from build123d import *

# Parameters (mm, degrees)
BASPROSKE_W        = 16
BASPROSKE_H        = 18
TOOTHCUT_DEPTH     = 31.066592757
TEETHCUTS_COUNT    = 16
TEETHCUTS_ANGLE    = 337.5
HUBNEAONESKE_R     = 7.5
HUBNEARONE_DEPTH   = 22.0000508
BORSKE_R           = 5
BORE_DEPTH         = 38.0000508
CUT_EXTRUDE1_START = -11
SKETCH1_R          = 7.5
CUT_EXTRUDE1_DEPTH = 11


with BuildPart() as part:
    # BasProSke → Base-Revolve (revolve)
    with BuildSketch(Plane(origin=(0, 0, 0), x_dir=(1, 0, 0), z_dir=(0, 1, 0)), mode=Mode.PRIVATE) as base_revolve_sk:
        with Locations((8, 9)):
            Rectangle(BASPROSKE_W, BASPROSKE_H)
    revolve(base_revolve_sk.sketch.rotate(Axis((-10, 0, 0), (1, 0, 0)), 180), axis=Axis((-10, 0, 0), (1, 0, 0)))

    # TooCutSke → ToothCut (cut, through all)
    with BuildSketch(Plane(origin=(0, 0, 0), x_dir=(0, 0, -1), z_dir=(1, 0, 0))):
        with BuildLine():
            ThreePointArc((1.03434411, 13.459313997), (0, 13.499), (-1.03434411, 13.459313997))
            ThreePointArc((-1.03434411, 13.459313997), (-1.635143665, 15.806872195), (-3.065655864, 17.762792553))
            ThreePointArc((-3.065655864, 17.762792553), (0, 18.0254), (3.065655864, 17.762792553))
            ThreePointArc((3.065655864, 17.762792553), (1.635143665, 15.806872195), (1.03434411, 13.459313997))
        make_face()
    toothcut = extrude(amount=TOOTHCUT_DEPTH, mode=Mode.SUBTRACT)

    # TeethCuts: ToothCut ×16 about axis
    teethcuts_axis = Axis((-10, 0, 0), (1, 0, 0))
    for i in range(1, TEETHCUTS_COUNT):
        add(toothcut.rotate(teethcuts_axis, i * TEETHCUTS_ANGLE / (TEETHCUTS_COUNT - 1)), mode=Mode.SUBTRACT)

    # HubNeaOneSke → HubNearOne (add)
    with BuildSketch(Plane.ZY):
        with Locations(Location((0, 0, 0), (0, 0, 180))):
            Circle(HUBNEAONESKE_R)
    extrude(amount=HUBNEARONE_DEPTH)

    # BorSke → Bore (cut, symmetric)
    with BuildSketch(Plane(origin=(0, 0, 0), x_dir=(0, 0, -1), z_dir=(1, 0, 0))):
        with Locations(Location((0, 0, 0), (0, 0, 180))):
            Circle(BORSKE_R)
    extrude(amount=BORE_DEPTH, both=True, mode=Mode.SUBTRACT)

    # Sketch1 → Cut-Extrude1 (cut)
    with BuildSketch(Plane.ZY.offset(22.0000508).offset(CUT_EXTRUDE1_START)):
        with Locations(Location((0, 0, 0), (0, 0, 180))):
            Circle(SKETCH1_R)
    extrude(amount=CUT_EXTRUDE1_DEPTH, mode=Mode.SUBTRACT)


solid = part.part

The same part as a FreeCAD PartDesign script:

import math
import FreeCAD as App
import Part
import Sketcher
Q = App.Units.Quantity

doc = App.newDocument("Part")
body = doc.addObject("PartDesign::Body", "Body")

sketch1 = body.newObject("Sketcher::SketchObject", "Sketch")
sketch1.AttachmentSupport = (doc.getObject("XZ_Plane"), [""])
sketch1.MapMode = "FlatFace"
sketch1.addGeometry(Part.LineSegment(App.Vector(0, -18, 0), App.Vector(0, 0, 0)), False)
sketch1.addGeometry(Part.LineSegment(App.Vector(0, 0, 0), App.Vector(16, 0, 0)), False)
sketch1.addGeometry(Part.LineSegment(App.Vector(16, 0, 0), App.Vector(16, -18, 0)), False)
sketch1.addGeometry(Part.LineSegment(App.Vector(16, -18, 0), App.Vector(0, -18, 0)), False)
sketch1.addConstraint(Sketcher.Constraint("Coincident", 0, 2, 1, 1))
sketch1.addConstraint(Sketcher.Constraint("Coincident", 1, 2, 2, 1))
sketch1.addConstraint(Sketcher.Constraint("Coincident", 2, 2, 3, 1))
sketch1.addConstraint(Sketcher.Constraint("Coincident", 3, 2, 0, 1))
sketch1.addConstraint(Sketcher.Constraint("Vertical", 0))
sketch1.addConstraint(Sketcher.Constraint("Horizontal", 1))
sketch1.addConstraint(Sketcher.Constraint("Vertical", 2))
sketch1.addConstraint(Sketcher.Constraint("Horizontal", 3))
sketch1.addConstraint(Sketcher.Constraint("Coincident", 0, 2, -1, 1))
sketch1.addConstraint(Sketcher.Constraint("DistanceX", 1, 1, 1, 2, Q("16 mm")))
sketch1.addConstraint(Sketcher.Constraint("DistanceY", 0, 1, 0, 2, Q("18 mm")))
revolution = body.newObject("PartDesign::Revolution", "Revolution")
revolution.Profile = sketch1
revolution.ReferenceAxis = (sketch1, ["H_Axis"])
revolution.Angle = 360

sketch2 = body.newObject("Sketcher::SketchObject", "Sketch001")
sketch2.AttachmentSupport = (doc.getObject("YZ_Plane"), [""])
sketch2.MapMode = "FlatFace"
sketch2.addGeometry(Part.ArcOfCircle(Part.Circle(App.Vector(0, 0, 0), App.Vector(0, 0, 1), 13.5), math.radians(-4.39), math.radians(4.39)), False)
sketch2.addGeometry(Part.ArcOfCircle(Part.Circle(App.Vector(13.1, -7.4, 0), App.Vector(0, 0, 1), 6.4), math.radians(43), math.radians(87)), False)
sketch2.addGeometry(Part.ArcOfCircle(Part.Circle(App.Vector(0, 0, 0), App.Vector(0, 0, 1), 18), math.radians(-9.79), math.radians(9.79)), False)
sketch2.addGeometry(Part.ArcOfCircle(Part.Circle(App.Vector(13.1, 7.4, 0), App.Vector(0, 0, 1), 6.4), math.radians(-87), math.radians(-43)), False)
sketch2.addConstraint(Sketcher.Constraint("Coincident", 0, 1, 1, 2))
sketch2.addConstraint(Sketcher.Constraint("Coincident", 1, 1, 2, 1))
sketch2.addConstraint(Sketcher.Constraint("Coincident", 2, 2, 3, 2))
sketch2.addConstraint(Sketcher.Constraint("Coincident", 3, 1, 0, 2))
sketch2.addConstraint(Sketcher.Constraint("Coincident", 0, 3, -1, 1))
sketch2.addConstraint(Sketcher.Constraint("Coincident", 2, 3, -1, 1))
sketch2.addConstraint(Sketcher.Constraint("Equal", 1, 3))
sketch2.addConstraint(Sketcher.Constraint("Symmetric", 1, 3, 3, 3, -1))
sketch2.addConstraint(Sketcher.Constraint("Radius", 1, Q("6.4 mm")))
sketch2.addConstraint(Sketcher.Constraint("Radius", 0, Q("13.499 mm")))
sketch2.addConstraint(Sketcher.Constraint("Radius", 2, Q("18.0254 mm")))
sketch2.addConstraint(Sketcher.Constraint("DistanceY", 0, 1, 2, 2, Q("4.1 mm")))
sketch2.addConstraint(Sketcher.Constraint("DistanceY", 1, 3, 3, 3, Q("14.84559 mm")))
pocket1 = body.newObject("PartDesign::Pocket", "Pocket")
pocket1.Profile = sketch2
pocket1.Type = "ThroughAll"
pocket1.Reversed = True
doc.recompute()

polarpattern = body.newObject("PartDesign::PolarPattern", "PolarPattern")
polarpattern.Originals = [pocket1]
polarpattern.Axis = (doc.getObject("X_Axis"), [""])
polarpattern.Angle = 360
polarpattern.Occurrences = 16
body.Tip = polarpattern

sketch3 = body.newObject("Sketcher::SketchObject", "Sketch002")
sketch3.AttachmentSupport = (doc.getObject("YZ_Plane"), [""])
sketch3.MapMode = "FlatFace"
sketch3.addGeometry(Part.Circle(App.Vector(0, 0, 0), App.Vector(0, 0, 1), 8), False)
sketch3.addConstraint(Sketcher.Constraint("Coincident", 0, 3, -1, 1))
sketch3.addConstraint(Sketcher.Constraint("Diameter", 0, Q("15 mm")))
pad1 = body.newObject("PartDesign::Pad", "Pad")
pad1.Profile = sketch3
pad1.Length = 22.000051
pad1.Reversed = True

sketch4 = body.newObject("Sketcher::SketchObject", "Sketch003")
sketch4.AttachmentSupport = (doc.getObject("YZ_Plane"), [""])
sketch4.MapMode = "FlatFace"
sketch4.addGeometry(Part.Circle(App.Vector(0, 0, 0), App.Vector(0, 0, 1), 5), False)
sketch4.addConstraint(Sketcher.Constraint("Coincident", 0, 3, -1, 1))
sketch4.addConstraint(Sketcher.Constraint("Diameter", 0, Q("10 mm")))
pocket2 = body.newObject("PartDesign::Pocket", "Pocket001")
pocket2.Profile = sketch4
pocket2.Length = 76.000102
pocket2.Midplane = True

sketch5 = body.newObject("Sketcher::SketchObject", "Sketch004")
sketch5.AttachmentSupport = (doc.getObject("YZ_Plane"), [""])
sketch5.MapMode = "FlatFace"
sketch5.AttachmentOffset = App.Placement(App.Vector(0, 0, -11.000051), App.Rotation())
sketch5.addGeometry(Part.Circle(App.Vector(0, 0, 0), App.Vector(0, 0, 1), 8), False)
sketch5.addConstraint(Sketcher.Constraint("Coincident", 0, 3, -1, 1))
sketch5.addConstraint(Sketcher.Constraint("Diameter", 0, Q("15 mm")))
pocket3 = body.newObject("PartDesign::Pocket", "Pocket002")
pocket3.Profile = sketch5
pocket3.Length = 11

doc.recompute()
